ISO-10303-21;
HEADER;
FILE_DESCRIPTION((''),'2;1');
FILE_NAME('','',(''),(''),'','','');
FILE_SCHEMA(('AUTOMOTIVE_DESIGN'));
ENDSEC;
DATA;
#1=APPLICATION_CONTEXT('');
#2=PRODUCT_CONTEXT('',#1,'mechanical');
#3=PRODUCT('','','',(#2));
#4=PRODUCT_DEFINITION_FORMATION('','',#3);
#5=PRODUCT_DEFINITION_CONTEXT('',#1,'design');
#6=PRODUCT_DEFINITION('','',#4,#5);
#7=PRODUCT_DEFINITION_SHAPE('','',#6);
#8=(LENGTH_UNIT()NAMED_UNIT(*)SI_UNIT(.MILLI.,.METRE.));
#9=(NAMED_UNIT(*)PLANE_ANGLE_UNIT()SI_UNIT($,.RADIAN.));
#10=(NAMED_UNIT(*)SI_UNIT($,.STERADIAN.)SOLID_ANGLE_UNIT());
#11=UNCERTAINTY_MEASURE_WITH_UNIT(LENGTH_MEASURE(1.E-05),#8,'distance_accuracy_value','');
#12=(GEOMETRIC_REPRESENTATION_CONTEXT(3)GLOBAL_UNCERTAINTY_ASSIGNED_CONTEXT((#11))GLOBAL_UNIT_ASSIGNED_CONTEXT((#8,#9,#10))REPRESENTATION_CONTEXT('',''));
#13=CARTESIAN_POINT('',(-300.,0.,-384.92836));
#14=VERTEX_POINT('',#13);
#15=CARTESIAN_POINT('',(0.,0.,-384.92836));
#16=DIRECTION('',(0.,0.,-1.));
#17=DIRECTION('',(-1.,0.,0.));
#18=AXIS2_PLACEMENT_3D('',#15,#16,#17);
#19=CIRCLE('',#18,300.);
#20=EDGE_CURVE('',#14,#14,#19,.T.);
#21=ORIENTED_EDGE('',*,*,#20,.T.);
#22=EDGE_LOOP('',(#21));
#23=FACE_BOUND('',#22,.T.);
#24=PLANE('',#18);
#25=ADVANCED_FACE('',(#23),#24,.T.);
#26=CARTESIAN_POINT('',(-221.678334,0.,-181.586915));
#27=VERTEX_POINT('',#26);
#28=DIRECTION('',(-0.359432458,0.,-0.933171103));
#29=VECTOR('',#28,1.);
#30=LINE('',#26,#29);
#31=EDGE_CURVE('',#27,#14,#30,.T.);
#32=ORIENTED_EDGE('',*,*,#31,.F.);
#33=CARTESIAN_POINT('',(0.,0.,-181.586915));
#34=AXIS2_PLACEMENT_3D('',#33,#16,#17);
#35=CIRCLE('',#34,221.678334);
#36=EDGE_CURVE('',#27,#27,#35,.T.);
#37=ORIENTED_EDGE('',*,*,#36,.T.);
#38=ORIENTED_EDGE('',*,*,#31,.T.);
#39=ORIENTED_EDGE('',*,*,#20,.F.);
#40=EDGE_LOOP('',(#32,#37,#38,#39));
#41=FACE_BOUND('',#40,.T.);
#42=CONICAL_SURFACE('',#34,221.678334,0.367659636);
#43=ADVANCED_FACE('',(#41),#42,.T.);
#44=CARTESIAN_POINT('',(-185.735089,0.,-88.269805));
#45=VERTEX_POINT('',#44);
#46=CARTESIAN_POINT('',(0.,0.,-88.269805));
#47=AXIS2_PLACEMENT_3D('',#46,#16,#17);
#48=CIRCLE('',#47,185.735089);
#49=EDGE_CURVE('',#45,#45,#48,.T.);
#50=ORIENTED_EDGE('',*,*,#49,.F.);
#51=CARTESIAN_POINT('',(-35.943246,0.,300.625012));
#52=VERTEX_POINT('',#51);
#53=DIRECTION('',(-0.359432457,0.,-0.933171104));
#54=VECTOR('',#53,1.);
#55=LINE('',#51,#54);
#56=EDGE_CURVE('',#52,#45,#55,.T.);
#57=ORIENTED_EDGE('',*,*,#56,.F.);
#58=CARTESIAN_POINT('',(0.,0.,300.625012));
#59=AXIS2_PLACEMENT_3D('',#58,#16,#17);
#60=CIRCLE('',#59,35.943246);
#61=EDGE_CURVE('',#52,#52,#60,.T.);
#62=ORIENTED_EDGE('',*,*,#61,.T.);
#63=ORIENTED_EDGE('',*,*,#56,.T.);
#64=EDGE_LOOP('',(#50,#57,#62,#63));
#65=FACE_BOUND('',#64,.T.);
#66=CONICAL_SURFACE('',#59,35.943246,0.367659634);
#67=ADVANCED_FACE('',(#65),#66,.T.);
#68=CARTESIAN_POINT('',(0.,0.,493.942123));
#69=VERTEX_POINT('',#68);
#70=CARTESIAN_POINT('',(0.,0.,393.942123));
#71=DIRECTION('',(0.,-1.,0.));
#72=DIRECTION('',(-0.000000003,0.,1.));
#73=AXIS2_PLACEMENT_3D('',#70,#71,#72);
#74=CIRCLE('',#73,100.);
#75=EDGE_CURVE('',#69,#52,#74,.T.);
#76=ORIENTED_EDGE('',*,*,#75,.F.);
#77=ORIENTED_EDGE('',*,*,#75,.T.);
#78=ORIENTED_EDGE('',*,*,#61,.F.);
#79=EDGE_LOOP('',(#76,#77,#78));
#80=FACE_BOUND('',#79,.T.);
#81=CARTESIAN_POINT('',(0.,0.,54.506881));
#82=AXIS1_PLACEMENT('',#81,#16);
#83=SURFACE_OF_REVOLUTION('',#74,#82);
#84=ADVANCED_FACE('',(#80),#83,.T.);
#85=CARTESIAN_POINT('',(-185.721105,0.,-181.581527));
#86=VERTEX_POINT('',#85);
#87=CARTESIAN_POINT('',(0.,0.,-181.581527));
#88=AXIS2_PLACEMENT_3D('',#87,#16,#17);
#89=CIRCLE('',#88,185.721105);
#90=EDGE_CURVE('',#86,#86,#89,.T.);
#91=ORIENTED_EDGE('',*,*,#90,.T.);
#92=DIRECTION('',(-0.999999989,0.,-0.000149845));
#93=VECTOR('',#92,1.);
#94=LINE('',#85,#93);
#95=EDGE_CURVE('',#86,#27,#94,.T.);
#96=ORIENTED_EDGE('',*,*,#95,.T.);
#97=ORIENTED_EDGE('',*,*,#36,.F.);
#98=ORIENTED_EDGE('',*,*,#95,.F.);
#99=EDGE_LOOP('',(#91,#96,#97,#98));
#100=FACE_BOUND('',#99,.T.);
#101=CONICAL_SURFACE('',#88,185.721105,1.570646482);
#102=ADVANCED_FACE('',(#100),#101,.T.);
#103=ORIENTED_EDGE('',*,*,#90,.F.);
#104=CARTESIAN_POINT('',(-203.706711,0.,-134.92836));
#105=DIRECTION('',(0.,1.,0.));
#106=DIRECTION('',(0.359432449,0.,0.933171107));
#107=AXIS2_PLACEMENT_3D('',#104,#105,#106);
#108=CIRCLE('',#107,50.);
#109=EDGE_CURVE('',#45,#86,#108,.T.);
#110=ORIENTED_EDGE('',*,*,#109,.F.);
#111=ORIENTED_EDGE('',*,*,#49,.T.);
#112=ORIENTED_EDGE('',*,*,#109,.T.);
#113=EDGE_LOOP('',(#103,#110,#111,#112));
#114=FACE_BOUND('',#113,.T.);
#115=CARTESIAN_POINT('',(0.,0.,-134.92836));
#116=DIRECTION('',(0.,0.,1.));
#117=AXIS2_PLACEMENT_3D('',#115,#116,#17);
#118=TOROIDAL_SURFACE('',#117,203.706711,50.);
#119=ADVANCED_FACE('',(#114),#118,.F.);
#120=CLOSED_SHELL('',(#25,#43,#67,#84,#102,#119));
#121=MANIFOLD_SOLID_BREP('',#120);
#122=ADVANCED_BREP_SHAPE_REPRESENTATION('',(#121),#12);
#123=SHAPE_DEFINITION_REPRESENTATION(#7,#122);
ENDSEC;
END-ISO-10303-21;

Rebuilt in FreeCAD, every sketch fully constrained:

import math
import FreeCAD as App
import Part
import Sketcher
from FreeCAD import Vector
Q = App.Units.Quantity

doc = App.newDocument("Part")
body = doc.addObject("PartDesign::Body", "Body")

# Sketch on XZ plane
sketch1 = body.newObject("Sketcher::SketchObject", "Sketch")
sketch1.AttachmentSupport = (doc.getObject("XZ_Plane"), [""])
sketch1.MapMode = "FlatFace"
sketch1.addGeometry([
    Part.ArcOfCircle(Part.Circle(Vector(0, 394, 0), Vector(0, 0, 1), 100), math.radians(90), math.radians(249)),  # 0
    Part.LineSegment(Vector(-36, 301, 0), Vector(-186, -88, 0)),  # 1
    Part.ArcOfCircle(Part.Circle(Vector(-204, -135, 0), Vector(0, 0, 1), 50), math.radians(-69), math.radians(69)),  # 2
    Part.LineSegment(Vector(-186, -182, 0), Vector(-222, -182, 0)),  # 3
    Part.LineSegment(Vector(-222, -182, 0), Vector(-300, -385, 0)),  # 4
    Part.LineSegment(Vector(-300, -385, 0), Vector(0, -385, 0)),  # 5
    Part.LineSegment(Vector(0, -385, 0), Vector(0, 494, 0)),  # 6
], False)
sketch1.addConstraint([
    Sketcher.Constraint("Coincident", 0, 2, 1, 1),
    Sketcher.Constraint("Coincident", 1, 2, 2, 2),
    Sketcher.Constraint("Coincident", 2, 1, 3, 1),
    Sketcher.Constraint("Coincident", 3, 2, 4, 1),
    Sketcher.Constraint("Coincident", 4, 2, 5, 1),
    Sketcher.Constraint("Coincident", 5, 2, 6, 1),
    Sketcher.Constraint("Coincident", 6, 2, 0, 1),
    Sketcher.Constraint("Horizontal", 5),
    Sketcher.Constraint("Vertical", 6),
    Sketcher.Constraint("PointOnObject", 0, 3, -2),
    Sketcher.Constraint("PointOnObject", 5, 2, -2),
    Sketcher.Constraint("Parallel", 1, 4),
    Sketcher.Constraint("Radius", 0, Q("100 mm")),
    Sketcher.Constraint("Radius", 2, Q("50 mm")),
    Sketcher.Constraint("DistanceX", 5, 1, 5, 2, Q("300 mm")),
    Sketcher.Constraint("DistanceY", 4, 2, 2, 3, Q("250 mm")),
    Sketcher.Constraint("Distance", 3, Q("35.957229 mm")),
    Sketcher.Constraint("Distance", 4, Q("217.90371 mm")),
    Sketcher.Constraint("DistanceY", 6, 1, 6, 2, Q("878.870483 mm")),
    Sketcher.Constraint("DistanceX", 2, 3, -1, 1, Q("203.706711 mm")),
    Sketcher.Constraint("DistanceY", 2, 3, -1, 1, Q("134.92836 mm")),
    Sketcher.Constraint("DistanceX", 1, 2, -1, 1, Q("185.735089 mm")),
    Sketcher.Constraint("DistanceY", 0, 2, 0, 3, Q("93.317111 mm")),
])
revolution = body.newObject("PartDesign::Revolution", "Revolution")
revolution.Profile = sketch1
revolution.ReferenceAxis = (sketch1, ["V_Axis"])
revolution.Angle = 360

doc.recompute()
